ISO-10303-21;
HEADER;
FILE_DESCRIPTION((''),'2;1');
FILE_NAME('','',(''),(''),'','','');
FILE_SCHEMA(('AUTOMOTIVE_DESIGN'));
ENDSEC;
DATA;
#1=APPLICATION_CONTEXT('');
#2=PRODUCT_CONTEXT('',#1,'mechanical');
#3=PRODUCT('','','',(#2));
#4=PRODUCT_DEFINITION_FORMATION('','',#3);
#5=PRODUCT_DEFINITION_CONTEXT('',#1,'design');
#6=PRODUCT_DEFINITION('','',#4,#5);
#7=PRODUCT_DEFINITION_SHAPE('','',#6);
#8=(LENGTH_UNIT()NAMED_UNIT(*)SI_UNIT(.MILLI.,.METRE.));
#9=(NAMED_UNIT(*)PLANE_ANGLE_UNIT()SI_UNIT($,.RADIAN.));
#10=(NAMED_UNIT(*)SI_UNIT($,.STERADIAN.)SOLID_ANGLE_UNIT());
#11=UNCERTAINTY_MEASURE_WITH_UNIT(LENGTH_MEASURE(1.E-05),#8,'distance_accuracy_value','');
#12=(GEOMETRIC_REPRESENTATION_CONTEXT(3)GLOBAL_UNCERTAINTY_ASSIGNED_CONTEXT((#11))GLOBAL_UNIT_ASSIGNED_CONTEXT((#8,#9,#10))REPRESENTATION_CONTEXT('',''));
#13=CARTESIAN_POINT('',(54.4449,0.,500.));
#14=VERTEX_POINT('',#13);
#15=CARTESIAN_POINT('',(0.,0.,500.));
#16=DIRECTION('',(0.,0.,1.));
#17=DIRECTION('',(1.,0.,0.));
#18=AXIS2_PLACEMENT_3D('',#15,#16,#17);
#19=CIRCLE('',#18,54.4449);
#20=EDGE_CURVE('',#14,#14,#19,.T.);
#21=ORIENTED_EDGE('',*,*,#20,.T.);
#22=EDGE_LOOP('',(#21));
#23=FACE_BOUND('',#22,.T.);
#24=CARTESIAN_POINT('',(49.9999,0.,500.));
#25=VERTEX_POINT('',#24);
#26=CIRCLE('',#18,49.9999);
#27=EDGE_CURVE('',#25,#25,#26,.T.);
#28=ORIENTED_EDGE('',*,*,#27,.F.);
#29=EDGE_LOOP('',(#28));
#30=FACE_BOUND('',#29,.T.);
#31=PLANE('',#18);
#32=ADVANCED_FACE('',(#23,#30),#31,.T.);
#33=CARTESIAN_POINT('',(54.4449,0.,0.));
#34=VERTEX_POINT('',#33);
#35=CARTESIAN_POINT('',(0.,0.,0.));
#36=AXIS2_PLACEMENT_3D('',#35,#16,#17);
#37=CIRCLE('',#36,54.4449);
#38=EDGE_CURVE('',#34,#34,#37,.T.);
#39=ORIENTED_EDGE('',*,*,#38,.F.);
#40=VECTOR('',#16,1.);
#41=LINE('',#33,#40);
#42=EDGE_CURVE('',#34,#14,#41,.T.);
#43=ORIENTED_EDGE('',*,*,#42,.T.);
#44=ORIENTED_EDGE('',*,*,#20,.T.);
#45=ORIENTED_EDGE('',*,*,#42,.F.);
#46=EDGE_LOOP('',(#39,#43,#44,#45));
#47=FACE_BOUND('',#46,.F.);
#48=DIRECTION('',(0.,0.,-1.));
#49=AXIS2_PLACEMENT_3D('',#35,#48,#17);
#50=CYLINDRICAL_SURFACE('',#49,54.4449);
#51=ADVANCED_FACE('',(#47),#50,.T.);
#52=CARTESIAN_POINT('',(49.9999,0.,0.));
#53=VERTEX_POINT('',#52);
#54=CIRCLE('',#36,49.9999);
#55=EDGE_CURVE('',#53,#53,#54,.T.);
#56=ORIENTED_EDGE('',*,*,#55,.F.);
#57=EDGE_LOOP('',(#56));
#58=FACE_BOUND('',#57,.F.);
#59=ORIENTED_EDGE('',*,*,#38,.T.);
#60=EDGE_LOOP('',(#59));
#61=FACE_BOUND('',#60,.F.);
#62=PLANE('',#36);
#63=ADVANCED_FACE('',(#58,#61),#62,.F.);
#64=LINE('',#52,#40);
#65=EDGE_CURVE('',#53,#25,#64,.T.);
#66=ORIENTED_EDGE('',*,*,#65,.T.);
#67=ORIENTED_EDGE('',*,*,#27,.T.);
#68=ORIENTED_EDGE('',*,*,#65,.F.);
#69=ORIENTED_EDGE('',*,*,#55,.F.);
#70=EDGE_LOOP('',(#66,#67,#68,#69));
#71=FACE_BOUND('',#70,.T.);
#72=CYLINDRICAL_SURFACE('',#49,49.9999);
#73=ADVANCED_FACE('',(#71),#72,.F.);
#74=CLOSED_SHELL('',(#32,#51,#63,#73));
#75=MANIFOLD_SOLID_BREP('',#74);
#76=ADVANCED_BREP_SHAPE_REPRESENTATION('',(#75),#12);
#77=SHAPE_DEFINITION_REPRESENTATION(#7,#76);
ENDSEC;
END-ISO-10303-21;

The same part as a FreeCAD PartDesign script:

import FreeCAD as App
import Part
import Sketcher
from FreeCAD import Vector
Q = App.Units.Quantity

doc = App.newDocument("Part")
params = doc.addObject("Spreadsheet::Sheet", "Params")
for row, (alias, value) in enumerate([
    ("sketch1_diameter", "3.937 in"),
    ("sketch1_diameter2", "4.287 in"),
    ("pad1_length", "500 mm"),
], start=1):
    params.set(f"A{row}", alias)
    params.set(f"B{row}", "=" + value)
    params.setAlias(f"B{row}", alias)

body = doc.addObject("PartDesign::Body", "Body")

sketch1 = body.newObject("Sketcher::SketchObject", "Sketch")
sketch1.AttachmentSupport = (doc.getObject("XY_Plane"), [""])
sketch1.MapMode = "FlatFace"
sketch1.addGeometry([
    Part.Circle(Vector(0, 0, 0), Vector(0, 0, 1), 54),
    Part.Circle(Vector(0, 0, 0), Vector(0, 0, 1), 50),
], False)
sketch1.addConstraint([
    Sketcher.Constraint("Coincident", 0, 3, -1, 1),
    Sketcher.Constraint("Coincident", 1, 3, -1, 1),
    Sketcher.Constraint("Diameter", 1, Q("3.937 in")),
    Sketcher.Constraint("Diameter", 0, Q("4.287 in")),
])
sketch1.setExpression("Constraints[2]", "Params.sketch1_diameter")
sketch1.setExpression("Constraints[3]", "Params.sketch1_diameter2")
pad1 = body.newObject("PartDesign::Pad", "Pad")
pad1.Profile = sketch1
pad1.setExpression("Length", "Params.pad1_length")

doc.recompute()
